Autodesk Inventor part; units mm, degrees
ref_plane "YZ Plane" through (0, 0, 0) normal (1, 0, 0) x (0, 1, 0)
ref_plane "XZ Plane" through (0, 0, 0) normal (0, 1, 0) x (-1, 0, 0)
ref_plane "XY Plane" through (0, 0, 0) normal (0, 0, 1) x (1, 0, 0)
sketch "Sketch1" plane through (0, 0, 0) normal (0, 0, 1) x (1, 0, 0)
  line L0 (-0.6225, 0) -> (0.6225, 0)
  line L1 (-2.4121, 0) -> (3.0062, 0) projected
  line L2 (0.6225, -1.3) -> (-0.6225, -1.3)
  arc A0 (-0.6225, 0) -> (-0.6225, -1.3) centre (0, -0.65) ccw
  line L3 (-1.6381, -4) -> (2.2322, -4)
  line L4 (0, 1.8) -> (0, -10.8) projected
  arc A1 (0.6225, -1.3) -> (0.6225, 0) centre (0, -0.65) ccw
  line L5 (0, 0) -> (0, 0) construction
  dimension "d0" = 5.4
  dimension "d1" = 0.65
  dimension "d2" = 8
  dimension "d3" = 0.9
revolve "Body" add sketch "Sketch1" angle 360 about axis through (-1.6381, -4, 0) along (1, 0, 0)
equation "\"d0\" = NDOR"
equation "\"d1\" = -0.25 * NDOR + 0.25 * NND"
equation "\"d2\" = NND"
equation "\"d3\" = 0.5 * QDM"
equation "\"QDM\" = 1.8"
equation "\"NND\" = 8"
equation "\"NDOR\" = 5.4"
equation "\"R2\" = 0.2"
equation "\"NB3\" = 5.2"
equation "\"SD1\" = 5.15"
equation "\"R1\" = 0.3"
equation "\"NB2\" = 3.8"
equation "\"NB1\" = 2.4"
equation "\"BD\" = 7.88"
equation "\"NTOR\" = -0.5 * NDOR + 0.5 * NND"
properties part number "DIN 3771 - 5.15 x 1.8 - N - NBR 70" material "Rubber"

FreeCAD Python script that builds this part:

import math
import FreeCAD as App
import Part
import Sketcher
from FreeCAD import Vector

doc = App.newDocument("Part")
body = doc.addObject("PartDesign::Body", "Body")

sketch1 = body.newObject("Sketcher::SketchObject", "Sketch")
sketch1.AttachmentSupport = (doc.getObject("XY_Plane"), [""])
sketch1.MapMode = "FlatFace"
sketch1.addGeometry(Part.ArcOfCircle(Part.Circle(Vector(0, -0.65, 0), Vector(0, 0, 1), 0.900003), math.radians(133.761974), math.radians(226.238026)), False)
sketch1.addGeometry(Part.LineSegment(Vector(-0.6225, -1.3, 0), Vector(0.6225, -1.3, 0)), False)
sketch1.addGeometry(Part.ArcOfCircle(Part.Circle(Vector(0, -0.65, 0), Vector(0, 0, 1), 0.900003), math.radians(-46.238026), math.radians(46.238026)), False)
sketch1.addGeometry(Part.LineSegment(Vector(0.6225, 0, 0), Vector(-0.6225, 0, 0)), False)
sketch1.addGeometry(Part.LineSegment(Vector(-0.6225, -4, 0), Vector(0.6225, -4, 0)), True)
sketch1.addConstraint(Sketcher.Constraint("Coincident", 0, 2, 1, 1))
sketch1.addConstraint(Sketcher.Constraint("Coincident", 1, 2, 2, 1))
sketch1.addConstraint(Sketcher.Constraint("Coincident", 2, 2, 3, 1))
sketch1.addConstraint(Sketcher.Constraint("Coincident", 3, 2, 0, 1))
sketch1.addConstraint(Sketcher.Constraint("Horizontal", 1))
sketch1.addConstraint(Sketcher.Constraint("Horizontal", 3))
sketch1.addConstraint(Sketcher.Constraint("Horizontal", 4))
sketch1.addConstraint(Sketcher.Constraint("Coincident", 2, 3, 0, 3))
sketch1.addConstraint(Sketcher.Constraint("Equal", 0, 2))
sketch1.addConstraint(Sketcher.Constraint("Symmetric", 2, 2, 3, 2, -1, 1))
sketch1.addConstraint(Sketcher.Constraint("Vertical", 1, 2, 2, 2))
sketch1.addConstraint(Sketcher.Constraint("Vertical", 3, 2, 4, 1))
sketch1.addConstraint(Sketcher.Constraint("Vertical", 2, 2, 4, 2))
sketch1.addConstraint(Sketcher.Constraint("Radius", 0, 0.9))
sketch1.addConstraint(Sketcher.Constraint("DistanceY", 0, 3, -1, 1, 0.65))
sketch1.addConstraint(Sketcher.Constraint("DistanceY", 4, 1, -1, 1, 4.0))
revolution = body.newObject("PartDesign::Revolution", "Revolution")
revolution.Profile = sketch1
revolution.ReferenceAxis = (sketch1, ["Axis0"])
revolution.Angle = 360

doc.recompute()
